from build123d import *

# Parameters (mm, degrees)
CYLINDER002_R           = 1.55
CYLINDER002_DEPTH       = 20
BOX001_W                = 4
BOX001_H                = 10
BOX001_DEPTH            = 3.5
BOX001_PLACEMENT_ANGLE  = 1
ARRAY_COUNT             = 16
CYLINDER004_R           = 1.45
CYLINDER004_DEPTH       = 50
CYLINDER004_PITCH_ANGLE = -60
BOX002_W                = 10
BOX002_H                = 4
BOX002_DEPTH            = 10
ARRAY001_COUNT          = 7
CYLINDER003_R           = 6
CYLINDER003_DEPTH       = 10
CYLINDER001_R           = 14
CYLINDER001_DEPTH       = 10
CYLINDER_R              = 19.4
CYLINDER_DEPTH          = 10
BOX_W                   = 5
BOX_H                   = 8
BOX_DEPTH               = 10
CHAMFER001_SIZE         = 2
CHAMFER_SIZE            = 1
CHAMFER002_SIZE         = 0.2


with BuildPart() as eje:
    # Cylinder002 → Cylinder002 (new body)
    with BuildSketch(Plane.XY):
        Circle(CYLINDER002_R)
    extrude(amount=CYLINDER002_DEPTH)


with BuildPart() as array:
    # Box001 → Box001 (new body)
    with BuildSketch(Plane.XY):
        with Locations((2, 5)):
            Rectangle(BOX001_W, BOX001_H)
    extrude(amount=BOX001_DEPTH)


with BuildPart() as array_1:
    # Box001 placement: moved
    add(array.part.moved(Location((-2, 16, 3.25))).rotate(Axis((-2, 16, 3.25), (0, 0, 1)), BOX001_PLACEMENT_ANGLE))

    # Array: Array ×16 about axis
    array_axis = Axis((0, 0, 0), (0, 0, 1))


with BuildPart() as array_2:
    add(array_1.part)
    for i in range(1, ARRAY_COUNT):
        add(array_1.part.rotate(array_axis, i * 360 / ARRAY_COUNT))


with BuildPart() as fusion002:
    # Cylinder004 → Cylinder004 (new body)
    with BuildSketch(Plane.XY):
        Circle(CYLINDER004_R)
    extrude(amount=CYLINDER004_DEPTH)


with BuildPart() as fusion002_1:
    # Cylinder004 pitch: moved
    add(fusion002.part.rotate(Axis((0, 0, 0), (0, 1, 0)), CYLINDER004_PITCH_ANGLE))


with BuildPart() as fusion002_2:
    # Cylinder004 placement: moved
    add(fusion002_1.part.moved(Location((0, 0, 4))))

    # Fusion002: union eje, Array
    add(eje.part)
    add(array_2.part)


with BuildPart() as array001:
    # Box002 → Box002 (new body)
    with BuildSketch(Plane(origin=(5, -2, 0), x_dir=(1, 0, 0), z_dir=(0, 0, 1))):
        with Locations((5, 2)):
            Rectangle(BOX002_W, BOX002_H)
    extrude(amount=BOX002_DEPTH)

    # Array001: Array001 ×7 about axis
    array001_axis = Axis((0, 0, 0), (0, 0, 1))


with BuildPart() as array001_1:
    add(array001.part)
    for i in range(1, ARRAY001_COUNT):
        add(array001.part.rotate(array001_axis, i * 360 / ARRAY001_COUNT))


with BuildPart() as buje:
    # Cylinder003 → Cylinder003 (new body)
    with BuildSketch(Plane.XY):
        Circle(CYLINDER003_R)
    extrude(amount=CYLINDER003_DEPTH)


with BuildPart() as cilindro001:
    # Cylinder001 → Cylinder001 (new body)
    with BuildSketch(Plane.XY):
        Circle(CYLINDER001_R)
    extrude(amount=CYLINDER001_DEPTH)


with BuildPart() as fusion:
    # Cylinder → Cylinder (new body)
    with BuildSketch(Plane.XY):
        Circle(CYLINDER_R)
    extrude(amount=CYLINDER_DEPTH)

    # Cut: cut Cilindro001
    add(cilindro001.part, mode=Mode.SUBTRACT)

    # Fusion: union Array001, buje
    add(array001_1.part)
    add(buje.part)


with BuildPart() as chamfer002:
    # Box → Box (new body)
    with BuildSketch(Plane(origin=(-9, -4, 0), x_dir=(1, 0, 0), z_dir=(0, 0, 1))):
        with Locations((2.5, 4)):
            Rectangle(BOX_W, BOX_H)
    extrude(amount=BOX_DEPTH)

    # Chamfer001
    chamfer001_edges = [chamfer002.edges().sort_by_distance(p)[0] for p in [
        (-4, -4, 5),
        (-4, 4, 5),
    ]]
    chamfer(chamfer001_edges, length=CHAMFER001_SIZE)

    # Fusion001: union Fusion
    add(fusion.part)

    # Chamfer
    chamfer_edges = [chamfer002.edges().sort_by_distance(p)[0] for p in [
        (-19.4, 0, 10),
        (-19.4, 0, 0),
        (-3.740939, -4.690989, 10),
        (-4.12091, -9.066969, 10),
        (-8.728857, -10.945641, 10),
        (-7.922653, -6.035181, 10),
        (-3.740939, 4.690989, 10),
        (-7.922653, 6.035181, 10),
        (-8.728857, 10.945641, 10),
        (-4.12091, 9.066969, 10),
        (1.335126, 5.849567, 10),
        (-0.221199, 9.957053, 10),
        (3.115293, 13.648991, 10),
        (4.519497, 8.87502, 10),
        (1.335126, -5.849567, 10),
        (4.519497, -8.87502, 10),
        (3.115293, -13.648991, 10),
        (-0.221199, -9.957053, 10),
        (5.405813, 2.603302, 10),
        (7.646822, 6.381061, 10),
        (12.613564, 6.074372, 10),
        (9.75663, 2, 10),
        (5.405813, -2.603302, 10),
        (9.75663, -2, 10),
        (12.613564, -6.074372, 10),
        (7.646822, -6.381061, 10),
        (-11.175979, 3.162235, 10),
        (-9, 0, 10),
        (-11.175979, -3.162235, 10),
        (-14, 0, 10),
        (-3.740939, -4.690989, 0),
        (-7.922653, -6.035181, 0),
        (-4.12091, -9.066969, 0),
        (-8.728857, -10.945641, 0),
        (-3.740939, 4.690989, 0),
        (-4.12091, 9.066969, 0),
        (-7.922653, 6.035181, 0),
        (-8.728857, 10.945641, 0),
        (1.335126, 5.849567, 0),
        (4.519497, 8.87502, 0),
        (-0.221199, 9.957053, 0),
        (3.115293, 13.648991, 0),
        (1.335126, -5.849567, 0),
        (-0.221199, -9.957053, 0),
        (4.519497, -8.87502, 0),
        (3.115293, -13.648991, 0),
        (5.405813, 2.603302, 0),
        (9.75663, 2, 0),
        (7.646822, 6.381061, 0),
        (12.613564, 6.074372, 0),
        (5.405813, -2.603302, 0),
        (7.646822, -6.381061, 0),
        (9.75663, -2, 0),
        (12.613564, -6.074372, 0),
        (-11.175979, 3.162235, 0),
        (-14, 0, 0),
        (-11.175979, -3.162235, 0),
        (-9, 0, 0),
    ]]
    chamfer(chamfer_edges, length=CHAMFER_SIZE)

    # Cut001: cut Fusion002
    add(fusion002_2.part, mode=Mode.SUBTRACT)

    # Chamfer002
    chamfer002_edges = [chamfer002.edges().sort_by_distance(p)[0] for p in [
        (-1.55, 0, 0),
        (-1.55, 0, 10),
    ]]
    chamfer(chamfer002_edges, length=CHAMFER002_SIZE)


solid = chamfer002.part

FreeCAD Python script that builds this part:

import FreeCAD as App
import Part
import Sketcher


def edges_at(feature, points):
    """Names of the edges that pass closest to the given points."""
    edges = feature.Shape.Edges
    near = lambda p: min(range(len(edges)), key=lambda i: edges[i].distToShape(Part.Vertex(*p))[0])
    return sorted({f"Edge{near(p) + 1}" for p in points})

doc = App.newDocument("Part")
body = doc.addObject("PartDesign::Body", "Body")

# Sketch on XY plane
sketch1 = body.newObject("Sketcher::SketchObject", "Sketch")
sketch1.AttachmentSupport = (doc.getObject("XY_Plane"), [""])
sketch1.MapMode = "FlatFace"
sketch1.addGeometry(Part.Circle(App.Vector(0, 0, 0), App.Vector(0, 0, 1), 1.6), False)
sketch1.addConstraint([
    Sketcher.Constraint("Coincident", 0, 3, -1, 1),
    Sketcher.Constraint("Diameter", 0, 3.1),
])
pad1 = body.newObject("PartDesign::Pad", "Pad")
pad1.Profile = sketch1
pad1.Length = 20
body2 = doc.addObject("PartDesign::Body", "Body001")

# Sketch on XY plane
sketch2 = body2.newObject("Sketcher::SketchObject", "Sketch001")
sketch2.AttachmentSupport = (doc.getObject("XY_Plane001"), [""])
sketch2.MapMode = "FlatFace"
sketch2.addGeometry([
    Part.LineSegment(App.Vector(0, 10, 0), App.Vector(0, 0, 0)),
    Part.LineSegment(App.Vector(0, 0, 0), App.Vector(4, 0, 0)),
    Part.LineSegment(App.Vector(4, 0, 0), App.Vector(4, 10, 0)),
    Part.LineSegment(App.Vector(4, 10, 0), App.Vector(0, 10, 0)),
], False)
sketch2.addConstraint([
    Sketcher.Constraint("Coincident", 0, 2, 1, 1),
    Sketcher.Constraint("Coincident", 1, 2, 2, 1),
    Sketcher.Constraint("Coincident", 2, 2, 3, 1),
    Sketcher.Constraint("Coincident", 3, 2, 0, 1),
    Sketcher.Constraint("Vertical", 0),
    Sketcher.Constraint("Horizontal", 1),
    Sketcher.Constraint("Vertical", 2),
    Sketcher.Constraint("Horizontal", 3),
    Sketcher.Constraint("Coincident", 0, 2, -1, 1),
    Sketcher.Constraint("DistanceX", 1, 1, 1, 2, 4.0),
    Sketcher.Constraint("DistanceY", 0, 2, 0, 1, 10.0),
])
pad2 = body2.newObject("PartDesign::Pad", "Pad001")
pad2.Profile = sketch2
pad2.Length = 3.5
body3 = doc.addObject("PartDesign::Body", "Body002")
doc.recompute()

body2.Placement = App.Placement(App.Vector(-2, 16, 3.25), App.Rotation(App.Vector(0, 0, 1), 1))
boolean = body3.newObject("PartDesign::Boolean", "Boolean")
boolean.Type = "Fuse"
boolean.addObjects([body2])
body4 = doc.addObject("PartDesign::Body", "Body003")
body4.AllowCompound = True
doc.recompute()

body4.BaseFeature = body3
doc.recompute()

body5 = doc.addObject("PartDesign::Body", "Body004")
body5.BaseFeature = body3
body5.Placement = App.Placement(App.Vector(0, 0, 0), App.Rotation(App.Vector(0, 0, 1), 22.5))
boolean2 = body4.newObject("PartDesign::Boolean", "Boolean001")
boolean2.Type = "Fuse"
boolean2.addObjects([body5])
doc.recompute()

body6 = doc.addObject("PartDesign::Body", "Body005")
body6.BaseFeature = body3
body6.Placement = App.Placement(App.Vector(0, 0, 0), App.Rotation(App.Vector(0, 0, 1), 45))
boolean3 = body4.newObject("PartDesign::Boolean", "Boolean002")
boolean3.Type = "Fuse"
boolean3.addObjects([body6])
doc.recompute()

body7 = doc.addObject("PartDesign::Body", "Body006")
body7.BaseFeature = body3
body7.Placement = App.Placement(App.Vector(0, 0, 0), App.Rotation(App.Vector(0, 0, 1), 67.5))
boolean4 = body4.newObject("PartDesign::Boolean", "Boolean003")
boolean4.Type = "Fuse"
boolean4.addObjects([body7])
doc.recompute()

body8 = doc.addObject("PartDesign::Body", "Body007")
body8.BaseFeature = body3
body8.Placement = App.Placement(App.Vector(0, 0, 0), App.Rotation(App.Vector(0, 0, 1), 90))
boolean5 = body4.newObject("PartDesign::Boolean", "Boolean004")
boolean5.Type = "Fuse"
boolean5.addObjects([body8])
doc.recompute()

body9 = doc.addObject("PartDesign::Body", "Body008")
body9.BaseFeature = body3
body9.Placement = App.Placement(App.Vector(0, 0, 0), App.Rotation(App.Vector(0, 0, 1), 112.5))
boolean6 = body4.newObject("PartDesign::Boolean", "Boolean005")
boolean6.Type = "Fuse"
boolean6.addObjects([body9])
doc.recompute()

body10 = doc.addObject("PartDesign::Body", "Body009")
body10.BaseFeature = body3
body10.Placement = App.Placement(App.Vector(0, 0, 0), App.Rotation(App.Vector(0, 0, 1), 135))
boolean7 = body4.newObject("PartDesign::Boolean", "Boolean006")
boolean7.Type = "Fuse"
boolean7.addObjects([body10])
doc.recompute()

body11 = doc.addObject("PartDesign::Body", "Body010")
body11.BaseFeature = body3
body11.Placement = App.Placement(App.Vector(0, 0, 0), App.Rotation(App.Vector(0, 0, 1), 157.5))
boolean8 = body4.newObject("PartDesign::Boolean", "Boolean007")
boolean8.Type = "Fuse"
boolean8.addObjects([body11])
doc.recompute()

body12 = doc.addObject("PartDesign::Body", "Body011")
body12.BaseFeature = body3
body12.Placement = App.Placement(App.Vector(0, 0, 0), App.Rotation(App.Vector(0, 0, 1), 180))
boolean9 = body4.newObject("PartDesign::Boolean", "Boolean008")
boolean9.Type = "Fuse"
boolean9.addObjects([body12])
doc.recompute()

body13 = doc.addObject("PartDesign::Body", "Body012")
body13.BaseFeature = body3
body13.Placement = App.Placement(App.Vector(0, 0, 0), App.Rotation(App.Vector(0, 0, 1), 202.5))
boolean10 = body4.newObject("PartDesign::Boolean", "Boolean009")
boolean10.Type = "Fuse"
boolean10.addObjects([body13])
doc.recompute()

body14 = doc.addObject("PartDesign::Body", "Body013")
body14.BaseFeature = body3
body14.Placement = App.Placement(App.Vector(0, 0, 0), App.Rotation(App.Vector(0, 0, 1), 225))
boolean11 = body4.newObject("PartDesign::Boolean", "Boolean010")
boolean11.Type = "Fuse"
boolean11.addObjects([body14])
doc.recompute()

body15 = doc.addObject("PartDesign::Body", "Body014")
body15.BaseFeature = body3
body15.Placement = App.Placement(App.Vector(0, 0, 0), App.Rotation(App.Vector(0, 0, 1), 247.5))
boolean12 = body4.newObject("PartDesign::Boolean", "Boolean011")
boolean12.Type = "Fuse"
boolean12.addObjects([body15])
doc.recompute()

body16 = doc.addObject("PartDesign::Body", "Body015")
body16.BaseFeature = body3
body16.Placement = App.Placement(App.Vector(0, 0, 0), App.Rotation(App.Vector(0, 0, 1), 270))
boolean13 = body4.newObject("PartDesign::Boolean", "Boolean012")
boolean13.Type = "Fuse"
boolean13.addObjects([body16])
doc.recompute()

body17 = doc.addObject("PartDesign::Body", "Body016")
body17.BaseFeature = body3
body17.Placement = App.Placement(App.Vector(0, 0, 0), App.Rotation(App.Vector(0, 0, 1), 292.5))
boolean14 = body4.newObject("PartDesign::Boolean", "Boolean013")
boolean14.Type = "Fuse"
boolean14.addObjects([body17])
doc.recompute()

body18 = doc.addObject("PartDesign::Body", "Body017")
body18.BaseFeature = body3
body18.Placement = App.Placement(App.Vector(0, 0, 0), App.Rotation(App.Vector(0, 0, 1), 315))
boolean15 = body4.newObject("PartDesign::Boolean", "Boolean014")
boolean15.Type = "Fuse"
boolean15.addObjects([body18])
doc.recompute()

body3.Placement = App.Placement(App.Vector(0, 0, 0), App.Rotation(App.Vector(0, 0, 1), 337.5))
boolean16 = body4.newObject("PartDesign::Boolean", "Boolean015")
boolean16.Type = "Fuse"
boolean16.addObjects([body3])
body19 = doc.addObject("PartDesign::Body", "Body018")

# Sketch on XY plane
sketch3 = body19.newObject("Sketcher::SketchObject", "Sketch002")
sketch3.AttachmentSupport = (doc.getObject("XY_Plane018"), [""])
sketch3.MapMode = "FlatFace"
sketch3.addGeometry(Part.Circle(App.Vector(0, 0, 0), App.Vector(0, 0, 1), 1.4), False)
sketch3.addConstraint([
    Sketcher.Constraint("Coincident", 0, 3, -1, 1),
    Sketcher.Constraint("Diameter", 0, 2.9),
])
pad3 = body19.newObject("PartDesign::Pad", "Pad002")
pad3.Profile = sketch3
pad3.Length = 50
body20 = doc.addObject("PartDesign::Body", "Body019")
doc.recompute()

body19.Placement = App.Placement(App.Vector(0, 0, 0), App.Rotation(App.Vector(0, 1, 0), 300))
boolean17 = body20.newObject("PartDesign::Boolean", "Boolean016")
boolean17.Type = "Fuse"
boolean17.addObjects([body19])
body21 = doc.addObject("PartDesign::Body", "Body020")
body21.AllowCompound = True
doc.recompute()

body20.Placement = App.Placement(App.Vector(0, 0, 4), App.Rotation(App.Vector(0, 0, 1), 0))
boolean18 = body21.newObject("PartDesign::Boolean", "Boolean017")
boolean18.Type = "Fuse"
boolean18.addObjects([body20])
doc.recompute()

boolean19 = body21.newObject("PartDesign::Boolean", "Boolean018")
boolean19.Type = "Fuse"
boolean19.addObjects([body])
doc.recompute()

boolean20 = body21.newObject("PartDesign::Boolean", "Boolean019")
boolean20.Type = "Fuse"
boolean20.addObjects([body4])
body22 = doc.addObject("PartDesign::Body", "Body021")

# Sketch on XY plane
sketch4 = body22.newObject("Sketcher::SketchObject", "Sketch003")
sketch4.AttachmentSupport = (doc.getObject("XY_Plane021"), [""])
sketch4.MapMode = "FlatFace"
sketch4.addGeometry([
    Part.LineSegment(App.Vector(5, 2, 0), App.Vector(5, -2, 0)),
    Part.LineSegment(App.Vector(5, -2, 0), App.Vector(15, -2, 0)),
    Part.LineSegment(App.Vector(15, -2, 0), App.Vector(15, 2, 0)),
    Part.LineSegment(App.Vector(15, 2, 0), App.Vector(5, 2, 0)),
], False)
sketch4.addConstraint([
    Sketcher.Constraint("Coincident", 0, 2, 1, 1),
    Sketcher.Constraint("Coincident", 1, 2, 2, 1),
    Sketcher.Constraint("Coincident", 2, 2, 3, 1),
    Sketcher.Constraint("Coincident", 3, 2, 0, 1),
    Sketcher.Constraint("Vertical", 0),
    Sketcher.Constraint("Horizontal", 1),
    Sketcher.Constraint("Vertical", 2),
    Sketcher.Constraint("Horizontal", 3),
    Sketcher.Constraint("DistanceX", 1, 1, 1, 2, 10.0),
    Sketcher.Constraint("DistanceY", 0, 2, 0, 1, 4.0),
    Sketcher.Constraint("DistanceX", -1, 1, 0, 2, 5.0),
    Sketcher.Constraint("DistanceY", 0, 2, -1, 1, 2.0),
])
pad4 = body22.newObject("PartDesign::Pad", "Pad003")
pad4.Profile = sketch4
pad4.Length = 10
body23 = doc.addObject("PartDesign::Body", "Body022")
body23.AllowCompound = True
doc.recompute()

body23.BaseFeature = body22
doc.recompute()

body24 = doc.addObject("PartDesign::Body", "Body023")
body24.BaseFeature = body22
body24.Placement = App.Placement(App.Vector(0, 0, 0), App.Rotation(App.Vector(0, 0, 1), 51.428571))
boolean21 = body23.newObject("PartDesign::Boolean", "Boolean020")
boolean21.Type = "Fuse"
boolean21.addObjects([body24])
doc.recompute()

body25 = doc.addObject("PartDesign::Body", "Body024")
body25.BaseFeature = body22
body25.Placement = App.Placement(App.Vector(0, 0, 0), App.Rotation(App.Vector(0, 0, 1), 102.857143))
boolean22 = body23.newObject("PartDesign::Boolean", "Boolean021")
boolean22.Type = "Fuse"
boolean22.addObjects([body25])
doc.recompute()

body26 = doc.addObject("PartDesign::Body", "Body025")
body26.BaseFeature = body22
body26.Placement = App.Placement(App.Vector(0, 0, 0), App.Rotation(App.Vector(0, 0, 1), 154.285714))
boolean23 = body23.newObject("PartDesign::Boolean", "Boolean022")
boolean23.Type = "Fuse"
boolean23.addObjects([body26])
doc.recompute()

body27 = doc.addObject("PartDesign::Body", "Body026")
body27.BaseFeature = body22
body27.Placement = App.Placement(App.Vector(0, 0, 0), App.Rotation(App.Vector(0, 0, 1), 205.714286))
boolean24 = body23.newObject("PartDesign::Boolean", "Boolean023")
boolean24.Type = "Fuse"
boolean24.addObjects([body27])
doc.recompute()

body28 = doc.addObject("PartDesign::Body", "Body027")
body28.BaseFeature = body22
body28.Placement = App.Placement(App.Vector(0, 0, 0), App.Rotation(App.Vector(0, 0, 1), 257.142857))
boolean25 = body23.newObject("PartDesign::Boolean", "Boolean024")
boolean25.Type = "Fuse"
boolean25.addObjects([body28])
doc.recompute()

body22.Placement = App.Placement(App.Vector(0, 0, 0), App.Rotation(App.Vector(0, 0, 1), 308.571429))
boolean26 = body23.newObject("PartDesign::Boolean", "Boolean025")
boolean26.Type = "Fuse"
boolean26.addObjects([body22])
body29 = doc.addObject("PartDesign::Body", "Body028")

# Sketch on XY plane
sketch5 = body29.newObject("Sketcher::SketchObject", "Sketch004")
sketch5.AttachmentSupport = (doc.getObject("XY_Plane028"), [""])
sketch5.MapMode = "FlatFace"
sketch5.addGeometry(Part.Circle(App.Vector(0, 0, 0), App.Vector(0, 0, 1), 6), False)
sketch5.addConstraint([
    Sketcher.Constraint("Coincident", 0, 3, -1, 1),
    Sketcher.Constraint("Diameter", 0, 12.0),
])
pad5 = body29.newObject("PartDesign::Pad", "Pad004")
pad5.Profile = sketch5
pad5.Length = 10
body30 = doc.addObject("PartDesign::Body", "Body029")

# Sketch on XY plane
sketch6 = body30.newObject("Sketcher::SketchObject", "Sketch005")
sketch6.AttachmentSupport = (doc.getObject("XY_Plane029"), [""])
sketch6.MapMode = "FlatFace"
sketch6.addGeometry(Part.Circle(App.Vector(0, 0, 0), App.Vector(0, 0, 1), 14), False)
sketch6.addConstraint([
    Sketcher.Constraint("Coincident", 0, 3, -1, 1),
    Sketcher.Constraint("Diameter", 0, 28.0),
])
pad6 = body30.newObject("PartDesign::Pad", "Pad005")
pad6.Profile = sketch6
pad6.Length = 10
body31 = doc.addObject("PartDesign::Body", "Body030")

# Sketch on XY plane
sketch7 = body31.newObject("Sketcher::SketchObject", "Sketch006")
sketch7.AttachmentSupport = (doc.getObject("XY_Plane030"), [""])
sketch7.MapMode = "FlatFace"
sketch7.addGeometry(Part.Circle(App.Vector(0, 0, 0), App.Vector(0, 0, 1), 19), False)
sketch7.addConstraint([
    Sketcher.Constraint("Coincident", 0, 3, -1, 1),
    Sketcher.Constraint("Diameter", 0, 38.8),
])
pad7 = body31.newObject("PartDesign::Pad", "Pad006")
pad7.Profile = sketch7
pad7.Length = 10
doc.recompute()

boolean27 = body31.newObject("PartDesign::Boolean", "Boolean026")
boolean27.Type = "Cut"
boolean27.addObjects([body30])
doc.recompute()

boolean28 = body31.newObject("PartDesign::Boolean", "Boolean027")
boolean28.Type = "Fuse"
boolean28.addObjects([body23])
doc.recompute()

boolean29 = body31.newObject("PartDesign::Boolean", "Boolean028")
boolean29.Type = "Fuse"
boolean29.addObjects([body29])
body32 = doc.addObject("PartDesign::Body", "Body031")

# Sketch on XY plane
sketch8 = body32.newObject("Sketcher::SketchObject", "Sketch007")
sketch8.AttachmentSupport = (doc.getObject("XY_Plane031"), [""])
sketch8.MapMode = "FlatFace"
sketch8.addGeometry([
    Part.LineSegment(App.Vector(-9, 4, 0), App.Vector(-9, -4, 0)),
    Part.LineSegment(App.Vector(-9, -4, 0), App.Vector(-4, -4, 0)),
    Part.LineSegment(App.Vector(-4, -4, 0), App.Vector(-4, 4, 0)),
    Part.LineSegment(App.Vector(-4, 4, 0), App.Vector(-9, 4, 0)),
], False)
sketch8.addConstraint([
    Sketcher.Constraint("Coincident", 0, 2, 1, 1),
    Sketcher.Constraint("Coincident", 1, 2, 2, 1),
    Sketcher.Constraint("Coincident", 2, 2, 3, 1),
    Sketcher.Constraint("Coincident", 3, 2, 0, 1),
    Sketcher.Constraint("Vertical", 0),
    Sketcher.Constraint("Horizontal", 1),
    Sketcher.Constraint("Vertical", 2),
    Sketcher.Constraint("Horizontal", 3),
    Sketcher.Constraint("DistanceX", 1, 1, 1, 2, 5.0),
    Sketcher.Constraint("DistanceY", 0, 2, 0, 1, 8.0),
    Sketcher.Constraint("DistanceX", 0, 2, -1, 1, 9.0),
    Sketcher.Constraint("DistanceY", 0, 2, -1, 1, 4.0),
])
pad8 = body32.newObject("PartDesign::Pad", "Pad007")
pad8.Profile = sketch8
pad8.Length = 10
doc.recompute()

chamfer = body32.newObject("PartDesign::Chamfer", "Chamfer")
chamfer.Base = (pad8, edges_at(pad8, [(-4, -4, 5), (-4, 4, 5)]))
chamfer.Size = 2
doc.recompute()

boolean30 = body32.newObject("PartDesign::Boolean", "Boolean029")
boolean30.Type = "Fuse"
boolean30.addObjects([body31])
doc.recompute()

chamfer2 = body32.newObject("PartDesign::Chamfer", "Chamfer001")
chamfer2.Base = (boolean30, edges_at(boolean30, [
    (-19.4, 0, 10),
    (-19.4, 0, 0),
    (-3.741, -4.691, 10),
    (-4.121, -9.067, 10),
    (-8.729, -10.946, 10),
    (-7.923, -6.035, 10),
    (-3.741, 4.691, 10),
    (-7.923, 6.035, 10),
    (-8.729, 10.946, 10),
    (-4.121, 9.067, 10),
    (1.335, 5.85, 10),
    (-0.221, 9.957, 10),
    (3.115, 13.649, 10),
    (4.519, 8.875, 10),
    (1.335, -5.85, 10),
    (4.519, -8.875, 10),
    (3.115, -13.649, 10),
    (-0.221, -9.957, 10),
    (5.406, 2.603, 10),
    (7.647, 6.381, 10),
    (12.614, 6.074, 10),
    (9.757, 2, 10),
    (5.406, -2.603, 10),
    (9.757, -2, 10),
    (12.614, -6.074, 10),
    (7.647, -6.381, 10),
    (-11.176, 3.162, 10),
    (-9, 0, 10),
    (-11.176, -3.162, 10),
    (-14, 0, 10),
    (-3.741, -4.691, 0),
    (-7.923, -6.035, 0),
    (-4.121, -9.067, 0),
    (-8.729, -10.946, 0),
    (-3.741, 4.691, 0),
    (-4.121, 9.067, 0),
    (-7.923, 6.035, 0),
    (-8.729, 10.946, 0),
    (1.335, 5.85, 0),
    (4.519, 8.875, 0),
    (-0.221, 9.957, 0),
    (3.115, 13.649, 0),
    (1.335, -5.85, 0),
    (-0.221, -9.957, 0),
    (4.519, -8.875, 0),
    (3.115, -13.649, 0),
    (5.406, 2.603, 0),
    (9.757, 2, 0),
    (7.647, 6.381, 0),
    (12.614, 6.074, 0),
    (5.406, -2.603, 0),
    (7.647, -6.381, 0),
    (9.757, -2, 0),
    (12.614, -6.074, 0),
    (-11.176, 3.162, 0),
    (-14, 0, 0),
    (-11.176, -3.162, 0),
    (-9, 0, 0),
]))
chamfer2.Size = 1
doc.recompute()

boolean31 = body32.newObject("PartDesign::Boolean", "Boolean030")
boolean31.Type = "Cut"
boolean31.addObjects([body21])
doc.recompute()

chamfer3 = body32.newObject("PartDesign::Chamfer", "Chamfer002")
chamfer3.Base = (boolean31, edges_at(boolean31, [(-1.55, 0, 0), (-1.55, 0, 10)]))
chamfer3.Size = 0.2

doc.recompute()
